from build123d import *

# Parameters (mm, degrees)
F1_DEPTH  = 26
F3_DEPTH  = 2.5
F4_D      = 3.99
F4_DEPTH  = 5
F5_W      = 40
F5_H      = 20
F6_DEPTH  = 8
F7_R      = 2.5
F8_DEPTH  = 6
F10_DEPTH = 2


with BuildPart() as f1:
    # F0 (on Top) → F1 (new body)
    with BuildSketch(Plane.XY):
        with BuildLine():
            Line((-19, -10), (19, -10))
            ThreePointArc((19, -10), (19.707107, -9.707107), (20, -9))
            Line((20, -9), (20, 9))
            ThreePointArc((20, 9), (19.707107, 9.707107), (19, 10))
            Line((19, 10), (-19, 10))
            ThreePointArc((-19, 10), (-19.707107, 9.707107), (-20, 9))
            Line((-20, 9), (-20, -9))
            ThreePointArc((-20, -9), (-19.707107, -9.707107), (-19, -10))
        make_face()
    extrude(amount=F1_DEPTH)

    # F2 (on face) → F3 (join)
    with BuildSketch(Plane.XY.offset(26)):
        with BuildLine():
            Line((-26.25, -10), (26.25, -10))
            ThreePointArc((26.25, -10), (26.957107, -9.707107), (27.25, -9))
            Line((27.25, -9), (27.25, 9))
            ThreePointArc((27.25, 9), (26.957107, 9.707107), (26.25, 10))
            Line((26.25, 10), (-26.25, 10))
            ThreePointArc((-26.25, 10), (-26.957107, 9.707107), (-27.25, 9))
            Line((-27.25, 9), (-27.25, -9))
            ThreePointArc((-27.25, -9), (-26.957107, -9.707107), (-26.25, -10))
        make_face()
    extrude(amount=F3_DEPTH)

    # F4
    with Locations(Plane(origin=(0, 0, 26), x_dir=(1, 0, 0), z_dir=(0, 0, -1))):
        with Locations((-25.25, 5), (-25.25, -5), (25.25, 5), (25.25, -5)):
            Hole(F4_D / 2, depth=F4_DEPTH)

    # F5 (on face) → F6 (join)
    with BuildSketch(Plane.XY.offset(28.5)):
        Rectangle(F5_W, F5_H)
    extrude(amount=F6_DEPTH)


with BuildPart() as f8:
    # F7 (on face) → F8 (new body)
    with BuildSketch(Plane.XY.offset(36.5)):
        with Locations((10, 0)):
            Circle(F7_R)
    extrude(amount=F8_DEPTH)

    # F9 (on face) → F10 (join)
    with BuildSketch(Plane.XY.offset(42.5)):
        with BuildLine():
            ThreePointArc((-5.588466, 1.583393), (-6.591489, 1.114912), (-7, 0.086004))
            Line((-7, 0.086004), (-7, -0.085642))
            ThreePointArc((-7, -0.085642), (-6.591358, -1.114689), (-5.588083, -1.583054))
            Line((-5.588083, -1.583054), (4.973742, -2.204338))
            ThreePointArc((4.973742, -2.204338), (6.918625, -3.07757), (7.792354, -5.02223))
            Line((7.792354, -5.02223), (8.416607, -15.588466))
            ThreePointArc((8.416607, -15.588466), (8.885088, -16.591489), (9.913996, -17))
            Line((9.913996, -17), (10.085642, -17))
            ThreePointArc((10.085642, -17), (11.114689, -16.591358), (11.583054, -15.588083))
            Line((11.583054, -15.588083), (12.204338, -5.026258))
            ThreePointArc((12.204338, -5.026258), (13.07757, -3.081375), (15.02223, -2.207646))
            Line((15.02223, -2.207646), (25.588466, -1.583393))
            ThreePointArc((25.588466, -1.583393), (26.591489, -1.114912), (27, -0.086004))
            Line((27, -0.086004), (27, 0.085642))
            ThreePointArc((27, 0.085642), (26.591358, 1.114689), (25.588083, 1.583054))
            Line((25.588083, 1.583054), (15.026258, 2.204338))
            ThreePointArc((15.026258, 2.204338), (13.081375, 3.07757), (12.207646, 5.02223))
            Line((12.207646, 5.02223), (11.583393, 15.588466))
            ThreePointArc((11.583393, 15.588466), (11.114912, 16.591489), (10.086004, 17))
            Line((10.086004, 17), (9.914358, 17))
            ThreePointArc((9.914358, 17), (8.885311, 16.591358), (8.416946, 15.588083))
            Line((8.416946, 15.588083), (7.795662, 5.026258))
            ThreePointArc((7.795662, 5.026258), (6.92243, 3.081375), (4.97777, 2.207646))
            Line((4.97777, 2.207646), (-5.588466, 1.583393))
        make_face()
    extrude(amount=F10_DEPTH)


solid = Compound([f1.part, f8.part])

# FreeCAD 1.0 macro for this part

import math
import FreeCAD as App
import Part
import Sketcher


def add_polygon(sketch, points):
    """Adds a closed chain of lines whose ends are joined by coincident constraints."""
    first, n = sketch.GeometryCount, len(points)
    for a, b in zip(points, points[1:] + points[:1]):
        sketch.addGeometry(Part.LineSegment(App.Vector(*a, 0), App.Vector(*b, 0)), False)
    for i in range(n):
        sketch.addConstraint(Sketcher.Constraint("Coincident", first + i, 2, first + (i + 1) % n, 1))

doc = App.newDocument("Part")
params = doc.addObject("Spreadsheet::Sheet", "Params")
for row, (alias, value) in enumerate([
    ("sketch1_radius", "0.999999 mm"),
    ("sketch1_width", "38 mm"),
    ("sketch1_height", "18 mm"),
    ("pad1_length", "26 mm"),
    ("sketch2_radius", "0.999999 mm"),
    ("sketch2_height", "18 mm"),
    ("sketch2_width", "52.5 mm"),
    ("pad2_length", "2.5 mm"),
    ("sketch3_diameter", "3.99 mm"),
    ("hole_diameter", "3.99 mm"),
    ("hole_depth", "5 mm"),
    ("sketch4_width", "40 mm"),
    ("sketch4_height", "20 mm"),
    ("pad3_length", "8 mm"),
    ("sketch5_diameter", "5 mm"),
    ("pad4_length", "6 mm"),
    ("sketch6_radius", "3.000001 mm"),
    ("sketch6_radius2", "1.5 mm"),
    ("pad5_length", "2 mm"),
], start=1):
    params.set(f"A{row}", alias)
    params.set(f"B{row}", "=" + value)
    params.setAlias(f"B{row}", alias)

body = doc.addObject("PartDesign::Body", "Body")

sketch1 = doc.addObject("Sketcher::SketchObject", "Sketch")
body.addObject(sketch1)
sketch1.AttachmentSupport = (doc.XY_Plane, [""])
sketch1.MapMode = "FlatFace"
sketch1.addGeometry([
    Part.LineSegment(App.Vector(-19, -10, 0), App.Vector(19, -10, 0)),
    Part.ArcOfCircle(Part.Circle(App.Vector(19, -9, 0), App.Vector(0, 0, 1), 1), math.radians(-90), math.radians(0)),
    Part.LineSegment(App.Vector(20, -9, 0), App.Vector(20, 9, 0)),
    Part.ArcOfCircle(Part.Circle(App.Vector(19, 9, 0), App.Vector(0, 0, 1), 1), math.radians(0), math.radians(90)),
    Part.LineSegment(App.Vector(19, 10, 0), App.Vector(-19, 10, 0)),
    Part.ArcOfCircle(Part.Circle(App.Vector(-19, 9, 0), App.Vector(0, 0, 1), 1), math.radians(90), math.radians(180)),
    Part.LineSegment(App.Vector(-20, 9, 0), App.Vector(-20, -9, 0)),
    Part.ArcOfCircle(Part.Circle(App.Vector(-19, -9, 0), App.Vector(0, 0, 1), 1), math.radians(180), math.radians(270)),
], False)
sketch1.addConstraint([
    Sketcher.Constraint("Tangent", 0, 2, 1, 1),
    Sketcher.Constraint("Tangent", 1, 2, 2, 1),
    Sketcher.Constraint("Tangent", 2, 2, 3, 1),
    Sketcher.Constraint("Tangent", 3, 2, 4, 1),
    Sketcher.Constraint("Tangent", 4, 2, 5, 1),
    Sketcher.Constraint("Tangent", 5, 2, 6, 1),
    Sketcher.Constraint("Tangent", 6, 2, 7, 1),
    Sketcher.Constraint("Tangent", 7, 2, 0, 1),
    Sketcher.Constraint("Horizontal", 0),
    Sketcher.Constraint("Vertical", 2),
    Sketcher.Constraint("Horizontal", 4),
    Sketcher.Constraint("Vertical", 6),
    Sketcher.Constraint("Equal", 1, 3),
    Sketcher.Constraint("Equal", 3, 5),
    Sketcher.Constraint("Equal", 5, 7),
    Sketcher.Constraint("Symmetric", 1, 3, 5, 3, -1, 1),
    Sketcher.Constraint("Radius", 1, 0.999999),
    Sketcher.Constraint("DistanceX", 0, 1, 0, 2, 38.0),
    Sketcher.Constraint("DistanceY", 2, 1, 2, 2, 18.0),
])
sketch1.setExpression("Constraints[16]", "Params.sketch1_radius")
sketch1.setExpression("Constraints[17]", "Params.sketch1_width")
sketch1.setExpression("Constraints[18]", "Params.sketch1_height")
pad1 = doc.addObject("PartDesign::Pad", "Pad")
body.addObject(pad1)
pad1.Profile = sketch1
pad1.setExpression("Length", "Params.pad1_length")

sketch2 = doc.addObject("Sketcher::SketchObject", "Sketch001")
body.addObject(sketch2)
sketch2.AttachmentSupport = (doc.XY_Plane, [""])
sketch2.MapMode = "FlatFace"
sketch2.AttachmentOffset = App.Placement(App.Vector(0, 0, 26), App.Rotation())
sketch2.addGeometry([
    Part.LineSegment(App.Vector(-26.2, -10, 0), App.Vector(26.2, -10, 0)),
    Part.ArcOfCircle(Part.Circle(App.Vector(26.3, -9, 0), App.Vector(0, 0, 1), 1), math.radians(-90), math.radians(0)),
    Part.LineSegment(App.Vector(27.2, -9, 0), App.Vector(27.2, 9, 0)),
    Part.ArcOfCircle(Part.Circle(App.Vector(26.3, 9, 0), App.Vector(0, 0, 1), 1), math.radians(0), math.radians(90)),
    Part.LineSegment(App.Vector(26.2, 10, 0), App.Vector(-26.2, 10, 0)),
    Part.ArcOfCircle(Part.Circle(App.Vector(-26.3, 9, 0), App.Vector(0, 0, 1), 1), math.radians(90), math.radians(180)),
    Part.LineSegment(App.Vector(-27.2, 9, 0), App.Vector(-27.2, -9, 0)),
    Part.ArcOfCircle(Part.Circle(App.Vector(-26.3, -9, 0), App.Vector(0, 0, 1), 1), math.radians(180), math.radians(270)),
], False)
sketch2.addConstraint([
    Sketcher.Constraint("Tangent", 0, 2, 1, 1),
    Sketcher.Constraint("Tangent", 1, 2, 2, 1),
    Sketcher.Constraint("Tangent", 2, 2, 3, 1),
    Sketcher.Constraint("Tangent", 3, 2, 4, 1),
    Sketcher.Constraint("Tangent", 4, 2, 5, 1),
    Sketcher.Constraint("Tangent", 5, 2, 6, 1),
    Sketcher.Constraint("Tangent", 6, 2, 7, 1),
    Sketcher.Constraint("Tangent", 7, 2, 0, 1),
    Sketcher.Constraint("Horizontal", 0),
    Sketcher.Constraint("Vertical", 2),
    Sketcher.Constraint("Horizontal", 4),
    Sketcher.Constraint("Vertical", 6),
    Sketcher.Constraint("Equal", 1, 3),
    Sketcher.Constraint("Equal", 3, 5),
    Sketcher.Constraint("Equal", 5, 7),
    Sketcher.Constraint("Symmetric", 1, 3, 5, 3, -1, 1),
    Sketcher.Constraint("Radius", 1, 0.999999),
    Sketcher.Constraint("DistanceY", 2, 1, 2, 2, 18.0),
    Sketcher.Constraint("DistanceX", 0, 1, 0, 2, 52.5),
])
sketch2.setExpression("Constraints[16]", "Params.sketch2_radius")
sketch2.setExpression("Constraints[17]", "Params.sketch2_height")
sketch2.setExpression("Constraints[18]", "Params.sketch2_width")
pad2 = doc.addObject("PartDesign::Pad", "Pad001")
body.addObject(pad2)
pad2.Profile = sketch2
pad2.setExpression("Length", "Params.pad2_length")

sketch3 = doc.addObject("Sketcher::SketchObject", "Sketch002")
body.addObject(sketch3)
sketch3.AttachmentSupport = (doc.XY_Plane, [""])
sketch3.MapMode = "FlatFace"
sketch3.AttachmentOffset = App.Placement(App.Vector(0, 0, 26), App.Rotation())
sketch3.addGeometry([
    Part.Circle(App.Vector(-25.2, -5, 0), App.Vector(0, 0, 1), 2),
    Part.Circle(App.Vector(-25.2, 5, 0), App.Vector(0, 0, 1), 2),
    Part.Circle(App.Vector(25.2, -5, 0), App.Vector(0, 0, 1), 2),
    Part.Circle(App.Vector(25.2, 5, 0), App.Vector(0, 0, 1), 2),
], False)
sketch3.addConstraint([
    Sketcher.Constraint("Equal", 0, 1),
    Sketcher.Constraint("Equal", 1, 2),
    Sketcher.Constraint("Equal", 2, 3),
    Sketcher.Constraint("Symmetric", 1, 3, 2, 3, -1, 1),
    Sketcher.Constraint("Symmetric", 0, 3, 3, 3, -1, 1),
    Sketcher.Constraint("Symmetric", 0, 3, 2, 3, -2),
    Sketcher.Constraint("Diameter", 0, 3.99),
    Sketcher.Constraint("DistanceY", 0, 3, -1, 1, 5.0),
    Sketcher.Constraint("DistanceX", 0, 3, 2, 3, 50.5),
])
sketch3.setExpression("Constraints[6]", "Params.sketch3_diameter")
doc.recompute()
hole = doc.addObject("PartDesign::Hole", "Hole")
body.addObject(hole)
hole.Profile = sketch3
hole.ThreadType = "None"
hole.setExpression("Diameter", "Params.hole_diameter")
hole.DepthType = "Dimension"
hole.setExpression("Depth", "Params.hole_depth")
hole.DrillPoint = "Flat"
hole.Reversed = True

sketch4 = doc.addObject("Sketcher::SketchObject", "Sketch003")
body.addObject(sketch4)
sketch4.AttachmentSupport = (doc.XY_Plane, [""])
sketch4.MapMode = "FlatFace"
sketch4.AttachmentOffset = App.Placement(App.Vector(0, 0, 28.5), App.Rotation())
add_polygon(sketch4, [(-20, 10), (-20, -10), (20, -10), (20, 10)])
sketch4.addConstraint([
    Sketcher.Constraint("Vertical", 0),
    Sketcher.Constraint("Horizontal", 1),
    Sketcher.Constraint("Vertical", 2),
    Sketcher.Constraint("Horizontal", 3),
    Sketcher.Constraint("Symmetric", 0, 2, 2, 2, -1, 1),
    Sketcher.Constraint("DistanceX", 1, 1, 1, 2, 40.0),
    Sketcher.Constraint("DistanceY", 0, 2, 0, 1, 20.0),
])
sketch4.setExpression("Constraints[9]", "Params.sketch4_width")
sketch4.setExpression("Constraints[10]", "Params.sketch4_height")
pad3 = doc.addObject("PartDesign::Pad", "Pad002")
body.addObject(pad3)
pad3.Profile = sketch4
pad3.setExpression("Length", "Params.pad3_length")
body2 = doc.addObject("PartDesign::Body", "Body001")

sketch5 = doc.addObject("Sketcher::SketchObject", "Sketch004")
body2.addObject(sketch5)
sketch5.AttachmentSupport = (doc.getObject("XY_Plane001"), [""])
sketch5.MapMode = "FlatFace"
sketch5.AttachmentOffset = App.Placement(App.Vector(0, 0, 36.5), App.Rotation())
sketch5.addGeometry(Part.Circle(App.Vector(10, 0, 0), App.Vector(0, 0, 1), 2.5), False)
sketch5.addConstraint([
    Sketcher.Constraint("PointOnObject", 0, 3, -1),
    Sketcher.Constraint("Diameter", 0, 5.0),
    Sketcher.Constraint("DistanceX", -1, 1, 0, 3, 10.0),
])
sketch5.setExpression("Constraints[1]", "Params.sketch5_diameter")
pad4 = doc.addObject("PartDesign::Pad", "Pad003")
body2.addObject(pad4)
pad4.Profile = sketch5
pad4.setExpression("Length", "Params.pad4_length")

sketch6 = doc.addObject("Sketcher::SketchObject", "Sketch005")
body2.addObject(sketch6)
sketch6.AttachmentSupport = (doc.getObject("XY_Plane001"), [""])
sketch6.MapMode = "FlatFace"
sketch6.AttachmentOffset = App.Placement(App.Vector(0, 0, 42.5), App.Rotation())
sketch6.addGeometry([
    Part.ArcOfCircle(Part.Circle(App.Vector(-5.5, 0.09, 0), App.Vector(0, 0, 1), 1.5), math.radians(93), math.radians(180)),
    Part.LineSegment(App.Vector(-7, 0.09, 0), App.Vector(-7, -0.09, 0)),
    Part.ArcOfCircle(Part.Circle(App.Vector(-5.5, -0.09, 0), App.Vector(0, 0, 1), 1.5), math.radians(-180), math.radians(-93)),
    Part.LineSegment(App.Vector(-5.59, -1.58, 0), App.Vector(4.97, -2.2, 0)),
    Part.ArcOfCircle(Part.Circle(App.Vector(4.8, -5.2, 0), App.Vector(0, 0, 1), 3), math.radians(3), math.radians(87)),
    Part.LineSegment(App.Vector(7.79, -5.02, 0), App.Vector(8.42, -15.59, 0)),
    Part.ArcOfCircle(Part.Circle(App.Vector(9.91, -15.5, 0), App.Vector(0, 0, 1), 1.5), math.radians(-177), math.radians(-90)),
    Part.LineSegment(App.Vector(9.91, -17, 0), App.Vector(10.09, -17, 0)),
    Part.ArcOfCircle(Part.Circle(App.Vector(10.09, -15.5, 0), App.Vector(0, 0, 1), 1.5), math.radians(-90), math.radians(-3)),
    Part.LineSegment(App.Vector(11.58, -15.59, 0), App.Vector(12.2, -5.03, 0)),
    Part.ArcOfCircle(Part.Circle(App.Vector(15.2, -5.2, 0), App.Vector(0, 0, 1), 3), math.radians(93), math.radians(177)),
    Part.LineSegment(App.Vector(15.02, -2.21, 0), App.Vector(25.59, -1.58, 0)),
    Part.ArcOfCircle(Part.Circle(App.Vector(25.5, -0.09, 0), App.Vector(0, 0, 1), 1.5), math.radians(-87), math.radians(0)),
    Part.LineSegment(App.Vector(27, -0.09, 0), App.Vector(27, 0.09, 0)),
    Part.ArcOfCircle(Part.Circle(App.Vector(25.5, 0.09, 0), App.Vector(0, 0, 1), 1.5), math.radians(0), math.radians(87)),
    Part.LineSegment(App.Vector(25.59, 1.58, 0), App.Vector(15.03, 2.2, 0)),
    Part.ArcOfCircle(Part.Circle(App.Vector(15.2, 5.2, 0), App.Vector(0, 0, 1), 3), math.radians(-177), math.radians(-93)),
    Part.LineSegment(App.Vector(12.21, 5.02, 0), App.Vector(11.58, 15.59, 0)),
    Part.ArcOfCircle(Part.Circle(App.Vector(10.09, 15.5, 0), App.Vector(0, 0, 1), 1.5), math.radians(3), math.radians(90)),
    Part.LineSegment(App.Vector(10.09, 17, 0), App.Vector(9.91, 17, 0)),
    Part.ArcOfCircle(Part.Circle(App.Vector(9.91, 15.5, 0), App.Vector(0, 0, 1), 1.5), math.radians(90), math.radians(177)),
    Part.LineSegment(App.Vector(8.42, 15.59, 0), App.Vector(7.8, 5.03, 0)),
    Part.ArcOfCircle(Part.Circle(App.Vector(4.8, 5.2, 0), App.Vector(0, 0, 1), 3), math.radians(-87), math.radians(-3)),
    Part.LineSegment(App.Vector(4.98, 2.21, 0), App.Vector(-5.59, 1.58, 0)),
], False)
sketch6.addConstraint([
    Sketcher.Constraint("Tangent", 0, 2, 1, 1),
    Sketcher.Constraint("Tangent", 1, 2, 2, 1),
    Sketcher.Constraint("Tangent", 2, 2, 3, 1),
    Sketcher.Constraint("Tangent", 3, 2, 4, 2),
    Sketcher.Constraint("Tangent", 4, 1, 5, 1),
    Sketcher.Constraint("Tangent", 5, 2, 6, 1),
    Sketcher.Constraint("Tangent", 6, 2, 7, 1),
    Sketcher.Constraint("Tangent", 7, 2, 8, 1),
    Sketcher.Constraint("Tangent", 8, 2, 9, 1),
    Sketcher.Constraint("Tangent", 9, 2, 10, 2),
    Sketcher.Constraint("Tangent", 10, 1, 11, 1),
    Sketcher.Constraint("Tangent", 11, 2, 12, 1),
    Sketcher.Constraint("Tangent", 12, 2, 13, 1),
    Sketcher.Constraint("Tangent", 13, 2, 14, 1),
    Sketcher.Constraint("Tangent", 14, 2, 15, 1),
    Sketcher.Constraint("Tangent", 15, 2, 16, 2),
    Sketcher.Constraint("Tangent", 16, 1, 17, 1),
    Sketcher.Constraint("Tangent", 17, 2, 18, 1),
    Sketcher.Constraint("Tangent", 18, 2, 19, 1),
    Sketcher.Constraint("Tangent", 19, 2, 20, 1),
    Sketcher.Constraint("Tangent", 20, 2, 21, 1),
    Sketcher.Constraint("Tangent", 21, 2, 22, 2),
    Sketcher.Constraint("Tangent", 22, 1, 23, 1),
    Sketcher.Constraint("Tangent", 23, 2, 0, 1),
    Sketcher.Constraint("Vertical", 1),
    Sketcher.Constraint("Horizontal", 7),
    Sketcher.Constraint("Vertical", 13),
    Sketcher.Constraint("Horizontal", 19),
    Sketcher.Constraint("Equal", 0, 2),
    Sketcher.Constraint("Equal", 2, 6),
    Sketcher.Constraint("Equal", 6, 8),
    Sketcher.Constraint("Equal", 4, 10),
    Sketcher.Constraint("Equal", 8, 12),
    Sketcher.Constraint("Equal", 12, 14),
    Sketcher.Constraint("Equal", 10, 16),
    Sketcher.Constraint("Equal", 14, 18),
    Sketcher.Constraint("Equal", 18, 20),
    Sketcher.Constraint("Equal", 16, 22),
    Sketcher.Constraint("Perpendicular", 3, 9),
    Sketcher.Constraint("Perpendicular", 5, 11),
    Sketcher.Constraint("Perpendicular", 9, 15),
    Sketcher.Constraint("Perpendicular", 11, 17),
    Sketcher.Constraint("Perpendicular", 15, 21),
    Sketcher.Constraint("Perpendicular", 17, 23),
    Sketcher.Constraint("Equal", 7, 19),
    Sketcher.Constraint("Equal", 19, 1),
    Sketcher.Constraint("Equal", 1, 13),
    Sketcher.Constraint("Equal", 3, 9),
    Sketcher.Constraint("Equal", 5, 11),
    Sketcher.Constraint("Equal", 9, 15),
    Sketcher.Constraint("Equal", 11, 17),
    Sketcher.Constraint("Radius", 4, 3.000001),
    Sketcher.Constraint("Radius", 0, 1.5),
    Sketcher.Constraint("DistanceX", 0, 2, -1, 1, 7.0),
    Sketcher.Constraint("DistanceY", 6, 2, -1, 1, 17.0),
    Sketcher.Constraint("DistanceX", -1, 1, 12, 2, 27.0),
    Sketcher.Constraint("Distance", 5, 10.58466),
    Sketcher.Constraint("DistanceX", 7, 1, 7, 2, 0.171646),
    Sketcher.Constraint("DistanceY", 2, 3, -1, 1, 0.085642),
    Sketcher.Constraint("DistanceX", -1, 1, 3, 2, 4.973742),
])
sketch6.setExpression("Constraints[51]", "Params.sketch6_radius")
sketch6.setExpression("Constraints[52]", "Params.sketch6_radius2")
pad5 = doc.addObject("PartDesign::Pad", "Pad004")
body2.addObject(pad5)
pad5.Profile = sketch6
pad5.setExpression("Length", "Params.pad5_length")

doc.recompute()
